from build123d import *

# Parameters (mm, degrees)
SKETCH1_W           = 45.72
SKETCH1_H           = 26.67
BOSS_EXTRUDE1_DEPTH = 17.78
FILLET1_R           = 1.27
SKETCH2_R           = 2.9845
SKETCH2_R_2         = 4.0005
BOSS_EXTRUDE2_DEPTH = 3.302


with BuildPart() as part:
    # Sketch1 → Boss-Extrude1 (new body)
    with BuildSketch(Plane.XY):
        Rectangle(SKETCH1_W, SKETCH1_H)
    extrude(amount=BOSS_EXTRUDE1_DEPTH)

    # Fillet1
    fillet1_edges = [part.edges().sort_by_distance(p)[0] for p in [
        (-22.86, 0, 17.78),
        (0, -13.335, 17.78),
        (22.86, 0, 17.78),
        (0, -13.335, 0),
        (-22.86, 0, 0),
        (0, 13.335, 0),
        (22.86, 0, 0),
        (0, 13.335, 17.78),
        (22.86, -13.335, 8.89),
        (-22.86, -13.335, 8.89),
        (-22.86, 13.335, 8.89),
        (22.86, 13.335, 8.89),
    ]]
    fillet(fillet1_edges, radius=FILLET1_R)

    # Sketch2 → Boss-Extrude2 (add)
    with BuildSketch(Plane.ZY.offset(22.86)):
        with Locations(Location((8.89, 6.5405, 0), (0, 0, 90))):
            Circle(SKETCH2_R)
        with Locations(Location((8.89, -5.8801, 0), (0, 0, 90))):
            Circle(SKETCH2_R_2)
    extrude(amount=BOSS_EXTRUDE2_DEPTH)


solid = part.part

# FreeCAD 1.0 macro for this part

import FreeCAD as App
import Part
import Sketcher
from FreeCAD import Vector
Q = App.Units.Quantity

doc = App.newDocument("Part")
body = doc.addObject("PartDesign::Body", "Body")

sketch1 = body.newObject("Sketcher::SketchObject", "Sketch")
sketch1.AttachmentSupport = (doc.getObject("XY_Plane"), [""])
sketch1.MapMode = "FlatFace"
sketch1.addGeometry([
    Part.LineSegment(Vector(-23, 13, 0), Vector(-23, -13, 0)),
    Part.LineSegment(Vector(-23, -13, 0), Vector(23, -13, 0)),
    Part.LineSegment(Vector(23, -13, 0), Vector(23, 13, 0)),
    Part.LineSegment(Vector(23, 13, 0), Vector(-23, 13, 0)),
], False)
sketch1.addConstraint([
    Sketcher.Constraint("Coincident", 0, 2, 1, 1),
    Sketcher.Constraint("Coincident", 1, 2, 2, 1),
    Sketcher.Constraint("Coincident", 2, 2, 3, 1),
    Sketcher.Constraint("Coincident", 3, 2, 0, 1),
    Sketcher.Constraint("Vertical", 0),
    Sketcher.Constraint("Horizontal", 1),
    Sketcher.Constraint("Vertical", 2),
    Sketcher.Constraint("Horizontal", 3),
    Sketcher.Constraint("Symmetric", 0, 2, 2, 2, -1, 1),
    Sketcher.Constraint("DistanceX", 1, 1, 1, 2, Q("1.8 in")),
    Sketcher.Constraint("DistanceY", 0, 2, 0, 1, Q("1.05 in")),
])
pad1 = body.newObject("PartDesign::Pad", "Pad")
pad1.Profile = sketch1
pad1.Length = Q("0.7 in")
doc.recompute()

fillet = body.newObject("PartDesign::Fillet", "Fillet")
fillet.Base = (pad1, ["Edge1"])
fillet.UseAllEdges = True
fillet.Radius = Q("0.05 in")

sketch2 = body.newObject("Sketcher::SketchObject", "Sketch001")
sketch2.AttachmentSupport = (doc.getObject("YZ_Plane"), [""])
sketch2.MapMode = "FlatFace"
sketch2.AttachmentOffset = App.Placement(Vector(0, 0, -0.9 * 25.4), App.Rotation())
sketch2.addGeometry([
    Part.Circle(Vector(6.5, 8.9, 0), Vector(0, 0, 1), 3),
    Part.Circle(Vector(-5.9, 8.9, 0), Vector(0, 0, 1), 4),
], False)
sketch2.addConstraint([
    Sketcher.Constraint("Horizontal", 0, 3, 1, 3),
    Sketcher.Constraint("Diameter", 0, Q("0.235 in")),
    Sketcher.Constraint("Diameter", 1, Q("0.315 in")),
    Sketcher.Constraint("DistanceY", -1, 1, 0, 3, Q("0.35 in")),
    Sketcher.Constraint("DistanceX", 1, 3, 0, 3, Q("0.489 in")),
    Sketcher.Constraint("DistanceX", -1, 1, 0, 3, Q("0.2575 in")),
])
pad2 = body.newObject("PartDesign::Pad", "Pad001")
pad2.Profile = sketch2
pad2.Length = Q("0.13 in")
pad2.Reversed = True

doc.recompute()
